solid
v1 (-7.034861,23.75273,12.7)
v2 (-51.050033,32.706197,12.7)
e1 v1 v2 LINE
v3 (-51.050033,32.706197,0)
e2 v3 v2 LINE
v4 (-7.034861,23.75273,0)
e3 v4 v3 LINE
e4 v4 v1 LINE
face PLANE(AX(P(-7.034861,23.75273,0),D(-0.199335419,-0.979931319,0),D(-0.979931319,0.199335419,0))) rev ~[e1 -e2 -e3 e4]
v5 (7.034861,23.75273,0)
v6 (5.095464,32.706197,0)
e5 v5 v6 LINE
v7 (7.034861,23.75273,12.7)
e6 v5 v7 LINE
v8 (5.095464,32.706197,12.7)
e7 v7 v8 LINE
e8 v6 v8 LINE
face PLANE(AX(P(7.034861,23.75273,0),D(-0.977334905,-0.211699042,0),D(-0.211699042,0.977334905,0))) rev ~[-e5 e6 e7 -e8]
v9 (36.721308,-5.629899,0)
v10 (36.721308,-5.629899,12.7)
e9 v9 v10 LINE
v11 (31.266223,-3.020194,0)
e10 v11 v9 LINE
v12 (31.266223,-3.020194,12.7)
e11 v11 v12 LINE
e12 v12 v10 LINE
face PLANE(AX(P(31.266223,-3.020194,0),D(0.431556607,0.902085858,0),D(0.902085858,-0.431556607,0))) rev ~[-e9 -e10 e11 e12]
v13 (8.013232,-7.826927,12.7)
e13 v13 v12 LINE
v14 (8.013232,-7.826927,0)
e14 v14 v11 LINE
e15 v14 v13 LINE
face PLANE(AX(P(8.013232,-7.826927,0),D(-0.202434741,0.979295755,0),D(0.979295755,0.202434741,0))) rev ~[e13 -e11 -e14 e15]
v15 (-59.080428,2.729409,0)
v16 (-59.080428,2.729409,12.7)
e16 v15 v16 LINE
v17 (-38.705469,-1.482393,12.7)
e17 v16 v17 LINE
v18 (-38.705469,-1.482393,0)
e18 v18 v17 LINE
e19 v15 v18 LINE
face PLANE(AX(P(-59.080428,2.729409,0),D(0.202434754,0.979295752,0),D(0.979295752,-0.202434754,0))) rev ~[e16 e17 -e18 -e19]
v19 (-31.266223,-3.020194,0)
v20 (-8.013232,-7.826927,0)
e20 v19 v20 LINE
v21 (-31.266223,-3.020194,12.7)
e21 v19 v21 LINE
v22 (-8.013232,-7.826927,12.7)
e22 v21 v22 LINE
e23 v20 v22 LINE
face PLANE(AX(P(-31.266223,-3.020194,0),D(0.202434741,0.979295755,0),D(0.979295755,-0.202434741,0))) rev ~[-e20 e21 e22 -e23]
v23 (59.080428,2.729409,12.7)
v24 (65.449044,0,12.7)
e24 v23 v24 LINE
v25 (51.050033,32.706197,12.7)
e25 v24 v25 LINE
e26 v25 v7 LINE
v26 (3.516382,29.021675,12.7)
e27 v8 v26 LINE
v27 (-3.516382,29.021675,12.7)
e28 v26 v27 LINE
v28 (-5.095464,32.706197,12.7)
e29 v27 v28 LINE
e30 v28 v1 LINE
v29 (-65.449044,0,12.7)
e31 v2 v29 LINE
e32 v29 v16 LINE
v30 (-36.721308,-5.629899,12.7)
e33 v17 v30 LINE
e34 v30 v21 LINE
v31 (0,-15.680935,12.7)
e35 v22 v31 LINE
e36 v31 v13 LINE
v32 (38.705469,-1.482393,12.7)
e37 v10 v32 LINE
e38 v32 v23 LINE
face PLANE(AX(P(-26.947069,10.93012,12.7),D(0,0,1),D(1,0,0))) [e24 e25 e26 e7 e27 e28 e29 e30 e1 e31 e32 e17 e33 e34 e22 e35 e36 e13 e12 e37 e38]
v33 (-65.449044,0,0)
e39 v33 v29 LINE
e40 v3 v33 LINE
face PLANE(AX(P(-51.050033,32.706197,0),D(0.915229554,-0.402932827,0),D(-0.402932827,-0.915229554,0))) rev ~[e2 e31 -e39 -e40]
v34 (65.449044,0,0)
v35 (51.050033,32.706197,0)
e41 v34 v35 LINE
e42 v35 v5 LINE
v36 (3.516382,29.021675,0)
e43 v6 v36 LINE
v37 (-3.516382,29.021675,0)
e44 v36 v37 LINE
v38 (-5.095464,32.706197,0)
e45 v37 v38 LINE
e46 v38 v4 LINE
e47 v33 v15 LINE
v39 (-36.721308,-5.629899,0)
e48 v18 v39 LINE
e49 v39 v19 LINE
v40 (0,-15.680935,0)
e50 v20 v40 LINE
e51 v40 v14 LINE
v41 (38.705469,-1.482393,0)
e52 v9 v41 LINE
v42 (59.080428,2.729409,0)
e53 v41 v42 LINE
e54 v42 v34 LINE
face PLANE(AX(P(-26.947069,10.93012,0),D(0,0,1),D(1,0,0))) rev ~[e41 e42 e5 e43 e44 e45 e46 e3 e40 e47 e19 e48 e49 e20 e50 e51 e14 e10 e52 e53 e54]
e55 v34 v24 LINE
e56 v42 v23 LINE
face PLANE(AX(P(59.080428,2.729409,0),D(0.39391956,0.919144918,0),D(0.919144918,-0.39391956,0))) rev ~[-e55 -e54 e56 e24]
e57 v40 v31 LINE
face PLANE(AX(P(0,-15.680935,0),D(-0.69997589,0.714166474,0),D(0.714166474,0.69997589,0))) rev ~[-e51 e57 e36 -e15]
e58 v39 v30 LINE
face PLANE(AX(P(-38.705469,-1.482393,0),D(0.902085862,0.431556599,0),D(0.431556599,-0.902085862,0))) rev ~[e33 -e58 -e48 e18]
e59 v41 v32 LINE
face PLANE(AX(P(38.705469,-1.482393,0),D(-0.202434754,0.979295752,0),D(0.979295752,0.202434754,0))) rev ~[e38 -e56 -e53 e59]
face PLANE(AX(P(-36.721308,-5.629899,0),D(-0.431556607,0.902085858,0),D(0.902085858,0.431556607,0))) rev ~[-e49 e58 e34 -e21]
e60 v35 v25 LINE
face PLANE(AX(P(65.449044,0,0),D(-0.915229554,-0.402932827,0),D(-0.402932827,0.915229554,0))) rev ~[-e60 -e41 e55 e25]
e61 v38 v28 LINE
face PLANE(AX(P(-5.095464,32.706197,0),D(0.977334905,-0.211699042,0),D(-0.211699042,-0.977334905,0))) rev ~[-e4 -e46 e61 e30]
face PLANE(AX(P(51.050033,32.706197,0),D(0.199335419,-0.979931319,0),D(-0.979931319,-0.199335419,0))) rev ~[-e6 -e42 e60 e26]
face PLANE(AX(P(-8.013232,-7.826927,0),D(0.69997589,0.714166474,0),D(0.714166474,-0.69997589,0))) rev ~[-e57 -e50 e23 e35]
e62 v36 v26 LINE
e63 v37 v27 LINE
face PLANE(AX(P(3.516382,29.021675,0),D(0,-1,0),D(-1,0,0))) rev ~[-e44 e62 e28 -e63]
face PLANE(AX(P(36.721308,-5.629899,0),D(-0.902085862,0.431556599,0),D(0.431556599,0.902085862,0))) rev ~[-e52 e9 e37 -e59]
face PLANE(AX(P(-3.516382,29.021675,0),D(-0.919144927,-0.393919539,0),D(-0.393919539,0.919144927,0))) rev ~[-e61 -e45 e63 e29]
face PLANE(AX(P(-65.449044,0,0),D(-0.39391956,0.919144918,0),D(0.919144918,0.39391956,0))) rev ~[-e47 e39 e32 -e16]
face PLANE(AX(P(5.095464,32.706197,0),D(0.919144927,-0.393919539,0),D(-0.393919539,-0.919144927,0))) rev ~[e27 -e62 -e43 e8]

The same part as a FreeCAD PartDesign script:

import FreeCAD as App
import Part
import Sketcher

V = App.Vector
Q = App.Units.Quantity


def add_polygon(sketch, points):
    """Adds a closed chain of lines whose ends are joined by coincident constraints."""
    first, n = sketch.GeometryCount, len(points)
    for a, b in zip(points, points[1:] + points[:1]):
        sketch.addGeometry(Part.LineSegment(App.Vector(*a, 0), App.Vector(*b, 0)), False)
    for i in range(n):
        sketch.addConstraint(Sketcher.Constraint("Coincident", first + i, 2, first + (i + 1) % n, 1))

doc = App.newDocument("Part")
body = doc.addObject("PartDesign::Body", "Body")

sketch1 = body.newObject("Sketcher::SketchObject", "Sketch")
sketch1.AttachmentSupport = (doc.getObject("XY_Plane"), [""])
sketch1.MapMode = "FlatFace"
add_polygon(sketch1, [(-3.516382, 29.021675), (-5.095464, 32.706197), (-7.034861, 23.75273), (-51.050033, 32.706197), (-65.449044, 0), (-59.080428, 2.729409), (-38.705469, -1.482393), (-36.721308, -5.629899), (-31.266223, -3.020194), (-8.013232, -7.826927), (0, -15.680935), (8.013232, -7.826927), (31.266223, -3.020194), (36.721308, -5.629899), (38.705469, -1.482393), (59.080428, 2.729409), (65.449044, 0), (51.050033, 32.706197), (7.034861, 23.75273), (5.095464, 32.706197), (3.516382, 29.021675)])
sketch1.addConstraint(Sketcher.Constraint("Horizontal", 20))
sketch1.addConstraint(Sketcher.Constraint("Symmetric", 3, 2, 15, 2, -1, 1))
sketch1.addConstraint(Sketcher.Constraint("Symmetric", 8, 2, 10, 2, -2))
sketch1.addConstraint(Sketcher.Constraint("Symmetric", 7, 2, 11, 2, -2))
sketch1.addConstraint(Sketcher.Constraint("Symmetric", 6, 2, 12, 2, -2))
sketch1.addConstraint(Sketcher.Constraint("Symmetric", 5, 2, 13, 2, -2))
sketch1.addConstraint(Sketcher.Constraint("Symmetric", 4, 2, 14, 2, -2))
sketch1.addConstraint(Sketcher.Constraint("Symmetric", 2, 2, 16, 2, -2))
sketch1.addConstraint(Sketcher.Constraint("Symmetric", 1, 2, 17, 2, -2))
sketch1.addConstraint(Sketcher.Constraint("Symmetric", 0, 2, 18, 2, -2))
sketch1.addConstraint(Sketcher.Constraint("PointOnObject", 3, 2, -1))
sketch1.addConstraint(Sketcher.Constraint("PointOnObject", 9, 2, -2))
sketch1.addConstraint(Sketcher.Constraint("Perpendicular", 0, 4))
sketch1.addConstraint(Sketcher.Constraint("Perpendicular", 6, 7))
sketch1.addConstraint(Sketcher.Constraint("Parallel", 5, 8))
sketch1.addConstraint(Sketcher.Constraint("Perpendicular", 15, 19))
sketch1.addConstraint(Sketcher.Constraint("Horizontal", 0, 2, 2, 2))
sketch1.addConstraint(Sketcher.Constraint("DistanceY", 6, 2, -1, 1, Q("5.629899 mm")))
sketch1.addConstraint(Sketcher.Constraint("DistanceY", 7, 2, 5, 2, Q("1.537801 mm")))
sketch1.addConstraint(Sketcher.Constraint("DistanceX", 8, 2, 13, 2, Q("46.718701 mm")))
sketch1.addConstraint(Sketcher.Constraint("Distance", 0, Q("4.008641 mm")))
sketch1.addConstraint(Sketcher.Constraint("Distance", 2, Q("44.916589 mm")))
sketch1.addConstraint(Sketcher.Constraint("Distance", 4, Q("6.928849 mm")))
sketch1.addConstraint(Sketcher.Constraint("Distance", 7, Q("6.04719 mm")))
sketch1.addConstraint(Sketcher.Constraint("DistanceX", 20, 2, 20, 1, Q("7.032764 mm")))
sketch1.addConstraint(Sketcher.Constraint("DistanceX", 1, 2, -1, 1, Q("7.034861 mm")))
sketch1.addConstraint(Sketcher.Constraint("DistanceY", -1, 1, 1, 2, Q("23.75273 mm")))
sketch1.addConstraint(Sketcher.Constraint("DistanceY", -1, 1, 4, 2, Q("2.729409 mm")))
sketch1.addConstraint(Sketcher.Constraint("DistanceX", 5, 2, -1, 1, Q("38.705469 mm")))
sketch1.addConstraint(Sketcher.Constraint("DistanceX", 2, 2, 0, 2, Q("45.954569 mm")))
sketch1.addConstraint(Sketcher.Constraint("DistanceX", 3, 2, 2, 2, Q("14.399011 mm")))
sketch1.addConstraint(Sketcher.Constraint("DistanceY", 5, 2, 2, 2, Q("34.18859 mm")))
sketch1.addConstraint(Sketcher.Constraint("DistanceY", 9, 2, 7, 2, Q("12.660741 mm")))
pad1 = body.newObject("PartDesign::Pad", "Pad")
pad1.Profile = sketch1
pad1.Length = Q("0.5 in")

doc.recompute()
